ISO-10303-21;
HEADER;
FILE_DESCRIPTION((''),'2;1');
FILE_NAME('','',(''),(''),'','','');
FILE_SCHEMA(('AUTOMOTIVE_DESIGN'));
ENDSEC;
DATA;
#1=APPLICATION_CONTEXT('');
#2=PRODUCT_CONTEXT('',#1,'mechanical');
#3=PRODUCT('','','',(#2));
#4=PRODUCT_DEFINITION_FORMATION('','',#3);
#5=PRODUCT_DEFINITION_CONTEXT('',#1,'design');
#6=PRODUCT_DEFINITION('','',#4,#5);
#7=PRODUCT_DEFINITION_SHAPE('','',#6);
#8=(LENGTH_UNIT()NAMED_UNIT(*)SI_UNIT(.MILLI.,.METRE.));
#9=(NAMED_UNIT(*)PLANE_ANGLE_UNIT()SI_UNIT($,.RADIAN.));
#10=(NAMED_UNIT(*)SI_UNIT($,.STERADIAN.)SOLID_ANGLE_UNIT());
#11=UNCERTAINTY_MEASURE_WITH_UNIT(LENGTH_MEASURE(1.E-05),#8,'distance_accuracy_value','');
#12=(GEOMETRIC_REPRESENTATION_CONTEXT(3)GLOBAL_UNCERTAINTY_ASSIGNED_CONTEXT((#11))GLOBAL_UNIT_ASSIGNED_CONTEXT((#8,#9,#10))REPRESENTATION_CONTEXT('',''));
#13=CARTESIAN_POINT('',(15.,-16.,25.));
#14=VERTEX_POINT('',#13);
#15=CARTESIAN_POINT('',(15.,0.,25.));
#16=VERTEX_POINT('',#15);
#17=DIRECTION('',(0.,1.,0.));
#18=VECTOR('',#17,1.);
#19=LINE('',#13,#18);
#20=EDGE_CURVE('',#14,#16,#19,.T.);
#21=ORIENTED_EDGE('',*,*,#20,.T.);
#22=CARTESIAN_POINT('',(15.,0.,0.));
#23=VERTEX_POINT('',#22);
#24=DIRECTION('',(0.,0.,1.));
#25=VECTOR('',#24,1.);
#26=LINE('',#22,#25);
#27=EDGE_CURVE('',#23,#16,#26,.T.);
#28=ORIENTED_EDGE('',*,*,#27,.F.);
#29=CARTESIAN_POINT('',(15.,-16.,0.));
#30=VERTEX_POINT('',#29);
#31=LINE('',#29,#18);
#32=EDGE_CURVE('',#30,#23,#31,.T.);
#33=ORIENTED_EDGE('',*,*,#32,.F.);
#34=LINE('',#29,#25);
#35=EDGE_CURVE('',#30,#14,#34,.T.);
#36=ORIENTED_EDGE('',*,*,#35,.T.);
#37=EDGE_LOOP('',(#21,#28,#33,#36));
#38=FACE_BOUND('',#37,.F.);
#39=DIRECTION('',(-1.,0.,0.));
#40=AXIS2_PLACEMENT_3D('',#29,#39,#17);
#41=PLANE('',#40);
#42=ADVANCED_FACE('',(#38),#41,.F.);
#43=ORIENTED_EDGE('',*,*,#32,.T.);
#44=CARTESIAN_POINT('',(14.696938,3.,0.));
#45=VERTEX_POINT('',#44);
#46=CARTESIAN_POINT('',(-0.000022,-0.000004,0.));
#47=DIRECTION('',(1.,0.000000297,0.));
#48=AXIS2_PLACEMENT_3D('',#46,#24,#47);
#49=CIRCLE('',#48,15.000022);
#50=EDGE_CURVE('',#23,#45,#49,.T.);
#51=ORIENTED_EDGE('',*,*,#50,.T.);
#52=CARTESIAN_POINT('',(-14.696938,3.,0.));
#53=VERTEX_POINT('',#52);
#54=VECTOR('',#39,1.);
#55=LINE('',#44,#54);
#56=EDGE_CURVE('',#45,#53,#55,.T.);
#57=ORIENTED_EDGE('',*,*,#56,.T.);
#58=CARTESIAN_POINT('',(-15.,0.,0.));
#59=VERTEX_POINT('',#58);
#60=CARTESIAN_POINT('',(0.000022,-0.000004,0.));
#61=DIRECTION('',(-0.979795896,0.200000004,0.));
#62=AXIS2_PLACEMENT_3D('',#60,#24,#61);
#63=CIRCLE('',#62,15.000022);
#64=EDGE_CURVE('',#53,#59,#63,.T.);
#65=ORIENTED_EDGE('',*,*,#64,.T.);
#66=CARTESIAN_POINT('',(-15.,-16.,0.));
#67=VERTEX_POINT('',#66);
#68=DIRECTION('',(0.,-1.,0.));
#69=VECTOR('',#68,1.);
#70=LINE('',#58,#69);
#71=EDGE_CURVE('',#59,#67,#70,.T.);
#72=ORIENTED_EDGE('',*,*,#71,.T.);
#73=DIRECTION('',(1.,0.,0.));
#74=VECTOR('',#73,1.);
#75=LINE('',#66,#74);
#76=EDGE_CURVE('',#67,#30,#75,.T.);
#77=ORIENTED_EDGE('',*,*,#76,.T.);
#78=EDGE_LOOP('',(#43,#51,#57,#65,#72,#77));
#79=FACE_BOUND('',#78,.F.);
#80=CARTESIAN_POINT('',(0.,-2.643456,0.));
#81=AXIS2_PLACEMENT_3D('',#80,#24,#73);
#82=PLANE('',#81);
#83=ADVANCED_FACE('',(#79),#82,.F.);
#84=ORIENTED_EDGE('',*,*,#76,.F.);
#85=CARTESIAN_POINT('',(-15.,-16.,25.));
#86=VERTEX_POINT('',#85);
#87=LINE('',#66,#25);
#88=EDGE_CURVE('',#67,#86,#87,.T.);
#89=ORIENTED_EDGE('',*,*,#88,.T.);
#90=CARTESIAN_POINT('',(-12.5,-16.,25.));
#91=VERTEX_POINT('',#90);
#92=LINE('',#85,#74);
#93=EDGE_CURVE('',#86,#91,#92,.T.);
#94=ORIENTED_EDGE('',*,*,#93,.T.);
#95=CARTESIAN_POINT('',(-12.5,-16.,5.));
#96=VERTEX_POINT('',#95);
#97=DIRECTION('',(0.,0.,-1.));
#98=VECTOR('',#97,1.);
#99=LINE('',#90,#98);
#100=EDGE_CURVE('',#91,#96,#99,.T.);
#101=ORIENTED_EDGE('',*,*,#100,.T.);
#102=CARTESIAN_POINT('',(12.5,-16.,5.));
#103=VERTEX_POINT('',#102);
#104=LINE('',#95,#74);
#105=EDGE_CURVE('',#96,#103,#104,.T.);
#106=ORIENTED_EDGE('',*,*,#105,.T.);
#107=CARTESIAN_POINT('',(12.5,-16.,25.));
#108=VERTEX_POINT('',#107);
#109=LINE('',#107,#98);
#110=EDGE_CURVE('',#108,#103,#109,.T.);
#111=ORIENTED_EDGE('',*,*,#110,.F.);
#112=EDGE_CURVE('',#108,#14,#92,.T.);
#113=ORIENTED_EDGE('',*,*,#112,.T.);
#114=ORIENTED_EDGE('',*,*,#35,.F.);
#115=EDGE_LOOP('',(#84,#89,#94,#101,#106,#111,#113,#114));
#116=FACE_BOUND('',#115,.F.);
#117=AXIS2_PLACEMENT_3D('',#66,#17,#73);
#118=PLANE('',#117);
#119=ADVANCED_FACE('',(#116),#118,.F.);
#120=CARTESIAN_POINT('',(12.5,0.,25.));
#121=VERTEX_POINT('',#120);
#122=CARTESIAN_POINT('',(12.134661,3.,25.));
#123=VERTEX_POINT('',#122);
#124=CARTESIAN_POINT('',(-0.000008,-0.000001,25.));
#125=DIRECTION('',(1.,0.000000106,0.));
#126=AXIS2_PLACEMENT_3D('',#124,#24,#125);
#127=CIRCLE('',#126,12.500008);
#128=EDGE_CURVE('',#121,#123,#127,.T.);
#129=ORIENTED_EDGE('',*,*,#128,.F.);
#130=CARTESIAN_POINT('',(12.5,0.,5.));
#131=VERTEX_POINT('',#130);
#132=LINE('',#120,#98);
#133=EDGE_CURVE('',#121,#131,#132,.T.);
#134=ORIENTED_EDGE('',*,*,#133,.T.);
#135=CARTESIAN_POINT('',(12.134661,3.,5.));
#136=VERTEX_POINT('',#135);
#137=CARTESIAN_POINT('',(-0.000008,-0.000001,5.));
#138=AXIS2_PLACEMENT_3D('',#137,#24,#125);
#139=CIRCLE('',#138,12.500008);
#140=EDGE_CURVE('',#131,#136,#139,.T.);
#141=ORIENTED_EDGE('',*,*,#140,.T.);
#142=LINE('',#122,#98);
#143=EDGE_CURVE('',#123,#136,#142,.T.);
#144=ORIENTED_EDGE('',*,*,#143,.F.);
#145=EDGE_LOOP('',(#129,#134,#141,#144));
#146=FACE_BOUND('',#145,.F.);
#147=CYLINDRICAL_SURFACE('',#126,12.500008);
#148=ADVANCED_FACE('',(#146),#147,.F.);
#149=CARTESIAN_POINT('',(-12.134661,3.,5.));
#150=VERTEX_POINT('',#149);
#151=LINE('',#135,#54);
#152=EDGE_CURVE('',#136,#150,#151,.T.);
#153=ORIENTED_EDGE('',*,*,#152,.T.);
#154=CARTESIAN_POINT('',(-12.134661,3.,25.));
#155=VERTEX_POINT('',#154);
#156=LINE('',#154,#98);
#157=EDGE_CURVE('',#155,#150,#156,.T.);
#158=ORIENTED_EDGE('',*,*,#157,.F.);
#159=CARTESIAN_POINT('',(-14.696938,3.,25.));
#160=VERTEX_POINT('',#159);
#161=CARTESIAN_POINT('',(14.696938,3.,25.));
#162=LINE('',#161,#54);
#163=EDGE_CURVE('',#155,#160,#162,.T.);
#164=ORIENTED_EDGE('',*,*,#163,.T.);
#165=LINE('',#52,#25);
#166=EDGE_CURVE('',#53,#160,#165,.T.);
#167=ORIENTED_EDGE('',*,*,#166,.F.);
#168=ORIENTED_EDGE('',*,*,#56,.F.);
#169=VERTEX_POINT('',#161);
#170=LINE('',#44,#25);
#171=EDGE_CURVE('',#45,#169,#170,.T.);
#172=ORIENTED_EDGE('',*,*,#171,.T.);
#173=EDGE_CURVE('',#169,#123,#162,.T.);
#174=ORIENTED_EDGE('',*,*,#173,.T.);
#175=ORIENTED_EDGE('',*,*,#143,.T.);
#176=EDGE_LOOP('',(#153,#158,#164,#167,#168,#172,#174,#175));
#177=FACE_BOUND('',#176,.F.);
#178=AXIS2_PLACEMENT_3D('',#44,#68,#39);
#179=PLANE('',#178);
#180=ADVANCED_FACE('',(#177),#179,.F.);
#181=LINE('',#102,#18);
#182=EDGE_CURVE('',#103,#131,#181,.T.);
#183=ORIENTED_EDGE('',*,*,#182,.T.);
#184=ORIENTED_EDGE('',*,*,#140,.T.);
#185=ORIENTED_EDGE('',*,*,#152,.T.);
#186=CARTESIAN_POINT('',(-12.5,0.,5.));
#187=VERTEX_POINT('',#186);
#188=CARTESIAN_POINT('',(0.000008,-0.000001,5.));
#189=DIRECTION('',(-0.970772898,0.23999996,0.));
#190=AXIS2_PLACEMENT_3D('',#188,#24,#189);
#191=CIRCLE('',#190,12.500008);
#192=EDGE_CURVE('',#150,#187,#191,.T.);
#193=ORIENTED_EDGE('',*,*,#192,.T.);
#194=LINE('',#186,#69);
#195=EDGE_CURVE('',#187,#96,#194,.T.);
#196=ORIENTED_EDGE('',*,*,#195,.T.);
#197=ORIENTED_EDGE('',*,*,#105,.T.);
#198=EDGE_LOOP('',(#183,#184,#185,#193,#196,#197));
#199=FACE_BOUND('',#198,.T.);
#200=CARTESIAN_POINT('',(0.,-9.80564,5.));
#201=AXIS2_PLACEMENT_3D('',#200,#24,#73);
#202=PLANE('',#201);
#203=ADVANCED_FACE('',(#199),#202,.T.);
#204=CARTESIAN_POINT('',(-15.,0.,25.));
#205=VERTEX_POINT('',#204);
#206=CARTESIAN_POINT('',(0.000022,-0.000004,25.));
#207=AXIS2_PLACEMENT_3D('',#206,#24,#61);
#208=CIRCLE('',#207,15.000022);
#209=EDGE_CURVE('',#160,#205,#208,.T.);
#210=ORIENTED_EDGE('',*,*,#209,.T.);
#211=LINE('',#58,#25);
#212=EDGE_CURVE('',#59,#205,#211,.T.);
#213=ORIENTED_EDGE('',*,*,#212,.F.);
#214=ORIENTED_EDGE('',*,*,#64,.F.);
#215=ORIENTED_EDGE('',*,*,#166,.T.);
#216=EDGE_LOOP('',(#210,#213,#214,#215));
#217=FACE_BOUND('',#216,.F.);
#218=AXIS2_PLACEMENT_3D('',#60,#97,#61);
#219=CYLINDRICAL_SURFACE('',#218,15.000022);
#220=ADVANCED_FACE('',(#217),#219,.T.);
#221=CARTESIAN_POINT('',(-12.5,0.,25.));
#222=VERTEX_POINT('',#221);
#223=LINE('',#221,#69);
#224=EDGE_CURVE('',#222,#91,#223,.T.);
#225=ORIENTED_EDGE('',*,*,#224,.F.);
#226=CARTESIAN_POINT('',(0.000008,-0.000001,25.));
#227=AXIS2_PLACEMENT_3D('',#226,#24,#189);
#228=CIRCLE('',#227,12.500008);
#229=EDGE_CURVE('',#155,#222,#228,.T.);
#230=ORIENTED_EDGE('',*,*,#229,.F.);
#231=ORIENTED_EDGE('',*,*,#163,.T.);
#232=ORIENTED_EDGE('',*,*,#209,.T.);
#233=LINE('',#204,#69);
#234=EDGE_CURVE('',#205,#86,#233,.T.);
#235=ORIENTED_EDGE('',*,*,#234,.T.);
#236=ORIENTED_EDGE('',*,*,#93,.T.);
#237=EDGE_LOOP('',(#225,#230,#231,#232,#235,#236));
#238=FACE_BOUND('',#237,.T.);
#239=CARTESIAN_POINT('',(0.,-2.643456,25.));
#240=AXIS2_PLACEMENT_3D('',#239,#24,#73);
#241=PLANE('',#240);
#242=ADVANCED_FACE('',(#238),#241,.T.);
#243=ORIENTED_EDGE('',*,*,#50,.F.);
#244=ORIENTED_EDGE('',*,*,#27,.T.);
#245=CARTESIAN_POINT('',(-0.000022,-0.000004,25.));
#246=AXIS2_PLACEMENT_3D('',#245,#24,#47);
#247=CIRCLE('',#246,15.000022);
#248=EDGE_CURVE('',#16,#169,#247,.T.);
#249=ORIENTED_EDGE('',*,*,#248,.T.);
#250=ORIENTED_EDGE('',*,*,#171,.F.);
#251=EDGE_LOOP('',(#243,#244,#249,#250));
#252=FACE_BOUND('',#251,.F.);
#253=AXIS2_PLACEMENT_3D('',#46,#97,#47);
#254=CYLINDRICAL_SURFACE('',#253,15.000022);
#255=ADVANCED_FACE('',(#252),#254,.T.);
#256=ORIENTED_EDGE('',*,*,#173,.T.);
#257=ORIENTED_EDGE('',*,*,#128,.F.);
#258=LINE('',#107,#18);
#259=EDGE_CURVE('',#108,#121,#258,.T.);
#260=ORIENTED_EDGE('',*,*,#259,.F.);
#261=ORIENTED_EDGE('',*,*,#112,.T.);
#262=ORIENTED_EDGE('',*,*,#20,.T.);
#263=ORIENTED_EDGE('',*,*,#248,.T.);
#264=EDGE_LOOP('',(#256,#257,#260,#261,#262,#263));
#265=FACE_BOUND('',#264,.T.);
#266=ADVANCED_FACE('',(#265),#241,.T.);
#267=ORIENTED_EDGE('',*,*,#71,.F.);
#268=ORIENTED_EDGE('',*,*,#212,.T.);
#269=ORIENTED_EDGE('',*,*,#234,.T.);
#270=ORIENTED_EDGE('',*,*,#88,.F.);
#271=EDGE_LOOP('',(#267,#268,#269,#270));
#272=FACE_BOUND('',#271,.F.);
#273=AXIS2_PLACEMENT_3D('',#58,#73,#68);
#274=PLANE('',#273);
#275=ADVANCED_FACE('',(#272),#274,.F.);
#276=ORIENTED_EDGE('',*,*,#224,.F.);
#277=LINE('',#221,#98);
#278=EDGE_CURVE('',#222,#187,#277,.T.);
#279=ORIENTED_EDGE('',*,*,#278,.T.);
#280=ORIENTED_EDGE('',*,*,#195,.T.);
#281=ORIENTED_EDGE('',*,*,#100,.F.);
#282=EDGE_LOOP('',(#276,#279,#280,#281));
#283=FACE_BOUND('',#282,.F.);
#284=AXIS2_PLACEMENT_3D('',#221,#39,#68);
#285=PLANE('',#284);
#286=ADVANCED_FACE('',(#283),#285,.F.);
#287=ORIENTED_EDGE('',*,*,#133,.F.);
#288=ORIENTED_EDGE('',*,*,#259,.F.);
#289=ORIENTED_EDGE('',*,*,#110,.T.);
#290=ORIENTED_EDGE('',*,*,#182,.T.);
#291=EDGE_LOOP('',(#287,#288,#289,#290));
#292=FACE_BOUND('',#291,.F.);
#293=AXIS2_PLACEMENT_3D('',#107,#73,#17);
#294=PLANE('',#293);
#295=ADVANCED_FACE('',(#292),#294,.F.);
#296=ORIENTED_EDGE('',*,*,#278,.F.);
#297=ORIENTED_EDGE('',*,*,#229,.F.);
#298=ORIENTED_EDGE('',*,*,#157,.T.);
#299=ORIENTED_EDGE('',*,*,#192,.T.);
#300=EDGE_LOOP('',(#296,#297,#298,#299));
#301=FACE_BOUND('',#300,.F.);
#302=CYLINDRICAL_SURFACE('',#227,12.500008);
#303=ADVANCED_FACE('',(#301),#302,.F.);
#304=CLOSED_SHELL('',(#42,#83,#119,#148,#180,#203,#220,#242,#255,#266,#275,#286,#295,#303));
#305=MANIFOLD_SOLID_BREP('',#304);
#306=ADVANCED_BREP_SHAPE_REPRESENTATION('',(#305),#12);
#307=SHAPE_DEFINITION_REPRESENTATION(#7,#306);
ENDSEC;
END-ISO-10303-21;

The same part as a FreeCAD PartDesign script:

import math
import FreeCAD as App
import Part
import Sketcher

doc = App.newDocument("Part")
body = doc.addObject("PartDesign::Body", "Body")

# Sketch on XY plane
sketch1 = body.newObject("Sketcher::SketchObject", "Sketch")
sketch1.AttachmentSupport = (doc.getObject("XY_Plane"), [""])
sketch1.MapMode = "FlatFace"
sketch1.addGeometry([
    Part.ArcOfCircle(Part.Circle(App.Vector(0.000022, -0.000004, 0), App.Vector(0, 0, 1), 15.000022), math.radians(168.463041), math.radians(179.999983)),  # 0
    Part.LineSegment(App.Vector(-15, 0, 0), App.Vector(-15, -16, 0)),  # 1
    Part.LineSegment(App.Vector(-15, -16, 0), App.Vector(15, -16, 0)),  # 2
    Part.LineSegment(App.Vector(15, -16, 0), App.Vector(15, 0, 0)),  # 3
    Part.ArcOfCircle(Part.Circle(App.Vector(-0.000022, -0.000004, 0), App.Vector(0, 0, 1), 15.000022), math.radians(0.000017), math.radians(11.536959)),  # 4
    Part.LineSegment(App.Vector(14.696938, 3, 0), App.Vector(-14.696938, 3, 0)),  # 5
], False)
sketch1.addConstraint([
    Sketcher.Constraint("Tangent", 0, 2, 1, 1),
    Sketcher.Constraint("Coincident", 1, 2, 2, 1),
    Sketcher.Constraint("Coincident", 2, 2, 3, 1),
    Sketcher.Constraint("Tangent", 3, 2, 4, 1),
    Sketcher.Constraint("Coincident", 4, 2, 5, 1),
    Sketcher.Constraint("Coincident", 5, 2, 0, 1),
    Sketcher.Constraint("Vertical", 1),
    Sketcher.Constraint("Horizontal", 2),
    Sketcher.Constraint("Vertical", 3),
    Sketcher.Constraint("Horizontal", 5),
    Sketcher.Constraint("Equal", 0, 4),
    Sketcher.Constraint("Symmetric", 0, 3, 4, 3, -1, 1),
    Sketcher.Constraint("PointOnObject", 0, 2, -1),
    Sketcher.Constraint("DistanceX", 2, 1, 2, 2, 30.0),
    Sketcher.Constraint("DistanceY", 1, 2, 1, 1, 16.0),
    Sketcher.Constraint("DistanceY", -1, 1, 4, 2, 3.0),
    Sketcher.Constraint("Radius", 0, 15.000022),
])
pad1 = body.newObject("PartDesign::Pad", "Pad")
pad1.Profile = sketch1
pad1.Length = 25

# Sketch on XY plane
sketch2 = body.newObject("Sketcher::SketchObject", "Sketch001")
sketch2.AttachmentSupport = (doc.getObject("XY_Plane"), [""])
sketch2.MapMode = "FlatFace"
sketch2.AttachmentOffset = App.Placement(App.Vector(0, 0, 25), App.Rotation())
sketch2.addGeometry([
    Part.LineSegment(App.Vector(-12.5, 0, 0), App.Vector(-12.5, -16, 0)),  # 0
    Part.LineSegment(App.Vector(-12.5, -16, 0), App.Vector(12.5, -16, 0)),  # 1
    Part.LineSegment(App.Vector(12.5, -16, 0), App.Vector(12.5, 0, 0)),  # 2
    Part.ArcOfCircle(Part.Circle(App.Vector(0, 0, 0), App.Vector(0, 0, 1), 12.5), math.radians(0), math.radians(13.89)),  # 3
    Part.LineSegment(App.Vector(12.1, 3, 0), App.Vector(-12.1, 3, 0)),  # 4
    Part.ArcOfCircle(Part.Circle(App.Vector(0, 0, 0), App.Vector(0, 0, 1), 12.5), math.radians(166.11), math.radians(180)),  # 5
], False)
sketch2.addConstraint([
    Sketcher.Constraint("Coincident", 0, 2, 1, 1),
    Sketcher.Constraint("Coincident", 1, 2, 2, 1),
    Sketcher.Constraint("Tangent", 2, 2, 3, 1),
    Sketcher.Constraint("Coincident", 3, 2, 4, 1),
    Sketcher.Constraint("Coincident", 4, 2, 5, 1),
    Sketcher.Constraint("Tangent", 5, 2, 0, 1),
    Sketcher.Constraint("Vertical", 0),
    Sketcher.Constraint("Horizontal", 1),
    Sketcher.Constraint("Vertical", 2),
    Sketcher.Constraint("Horizontal", 4),
    Sketcher.Constraint("Coincident", 3, 3, -1, 1),
    Sketcher.Constraint("Coincident", 5, 3, -1, 1),
    Sketcher.Constraint("Equal", 3, 5),
    Sketcher.Constraint("DistanceX", 1, 1, 1, 2, 25.0),
    Sketcher.Constraint("DistanceY", 0, 2, 0, 1, 16.0),
    Sketcher.Constraint("DistanceY", -1, 1, 3, 2, 3.0),
])
pocket1 = body.newObject("PartDesign::Pocket", "Pocket")
pocket1.Profile = sketch2
pocket1.Length = 20

doc.recompute()
